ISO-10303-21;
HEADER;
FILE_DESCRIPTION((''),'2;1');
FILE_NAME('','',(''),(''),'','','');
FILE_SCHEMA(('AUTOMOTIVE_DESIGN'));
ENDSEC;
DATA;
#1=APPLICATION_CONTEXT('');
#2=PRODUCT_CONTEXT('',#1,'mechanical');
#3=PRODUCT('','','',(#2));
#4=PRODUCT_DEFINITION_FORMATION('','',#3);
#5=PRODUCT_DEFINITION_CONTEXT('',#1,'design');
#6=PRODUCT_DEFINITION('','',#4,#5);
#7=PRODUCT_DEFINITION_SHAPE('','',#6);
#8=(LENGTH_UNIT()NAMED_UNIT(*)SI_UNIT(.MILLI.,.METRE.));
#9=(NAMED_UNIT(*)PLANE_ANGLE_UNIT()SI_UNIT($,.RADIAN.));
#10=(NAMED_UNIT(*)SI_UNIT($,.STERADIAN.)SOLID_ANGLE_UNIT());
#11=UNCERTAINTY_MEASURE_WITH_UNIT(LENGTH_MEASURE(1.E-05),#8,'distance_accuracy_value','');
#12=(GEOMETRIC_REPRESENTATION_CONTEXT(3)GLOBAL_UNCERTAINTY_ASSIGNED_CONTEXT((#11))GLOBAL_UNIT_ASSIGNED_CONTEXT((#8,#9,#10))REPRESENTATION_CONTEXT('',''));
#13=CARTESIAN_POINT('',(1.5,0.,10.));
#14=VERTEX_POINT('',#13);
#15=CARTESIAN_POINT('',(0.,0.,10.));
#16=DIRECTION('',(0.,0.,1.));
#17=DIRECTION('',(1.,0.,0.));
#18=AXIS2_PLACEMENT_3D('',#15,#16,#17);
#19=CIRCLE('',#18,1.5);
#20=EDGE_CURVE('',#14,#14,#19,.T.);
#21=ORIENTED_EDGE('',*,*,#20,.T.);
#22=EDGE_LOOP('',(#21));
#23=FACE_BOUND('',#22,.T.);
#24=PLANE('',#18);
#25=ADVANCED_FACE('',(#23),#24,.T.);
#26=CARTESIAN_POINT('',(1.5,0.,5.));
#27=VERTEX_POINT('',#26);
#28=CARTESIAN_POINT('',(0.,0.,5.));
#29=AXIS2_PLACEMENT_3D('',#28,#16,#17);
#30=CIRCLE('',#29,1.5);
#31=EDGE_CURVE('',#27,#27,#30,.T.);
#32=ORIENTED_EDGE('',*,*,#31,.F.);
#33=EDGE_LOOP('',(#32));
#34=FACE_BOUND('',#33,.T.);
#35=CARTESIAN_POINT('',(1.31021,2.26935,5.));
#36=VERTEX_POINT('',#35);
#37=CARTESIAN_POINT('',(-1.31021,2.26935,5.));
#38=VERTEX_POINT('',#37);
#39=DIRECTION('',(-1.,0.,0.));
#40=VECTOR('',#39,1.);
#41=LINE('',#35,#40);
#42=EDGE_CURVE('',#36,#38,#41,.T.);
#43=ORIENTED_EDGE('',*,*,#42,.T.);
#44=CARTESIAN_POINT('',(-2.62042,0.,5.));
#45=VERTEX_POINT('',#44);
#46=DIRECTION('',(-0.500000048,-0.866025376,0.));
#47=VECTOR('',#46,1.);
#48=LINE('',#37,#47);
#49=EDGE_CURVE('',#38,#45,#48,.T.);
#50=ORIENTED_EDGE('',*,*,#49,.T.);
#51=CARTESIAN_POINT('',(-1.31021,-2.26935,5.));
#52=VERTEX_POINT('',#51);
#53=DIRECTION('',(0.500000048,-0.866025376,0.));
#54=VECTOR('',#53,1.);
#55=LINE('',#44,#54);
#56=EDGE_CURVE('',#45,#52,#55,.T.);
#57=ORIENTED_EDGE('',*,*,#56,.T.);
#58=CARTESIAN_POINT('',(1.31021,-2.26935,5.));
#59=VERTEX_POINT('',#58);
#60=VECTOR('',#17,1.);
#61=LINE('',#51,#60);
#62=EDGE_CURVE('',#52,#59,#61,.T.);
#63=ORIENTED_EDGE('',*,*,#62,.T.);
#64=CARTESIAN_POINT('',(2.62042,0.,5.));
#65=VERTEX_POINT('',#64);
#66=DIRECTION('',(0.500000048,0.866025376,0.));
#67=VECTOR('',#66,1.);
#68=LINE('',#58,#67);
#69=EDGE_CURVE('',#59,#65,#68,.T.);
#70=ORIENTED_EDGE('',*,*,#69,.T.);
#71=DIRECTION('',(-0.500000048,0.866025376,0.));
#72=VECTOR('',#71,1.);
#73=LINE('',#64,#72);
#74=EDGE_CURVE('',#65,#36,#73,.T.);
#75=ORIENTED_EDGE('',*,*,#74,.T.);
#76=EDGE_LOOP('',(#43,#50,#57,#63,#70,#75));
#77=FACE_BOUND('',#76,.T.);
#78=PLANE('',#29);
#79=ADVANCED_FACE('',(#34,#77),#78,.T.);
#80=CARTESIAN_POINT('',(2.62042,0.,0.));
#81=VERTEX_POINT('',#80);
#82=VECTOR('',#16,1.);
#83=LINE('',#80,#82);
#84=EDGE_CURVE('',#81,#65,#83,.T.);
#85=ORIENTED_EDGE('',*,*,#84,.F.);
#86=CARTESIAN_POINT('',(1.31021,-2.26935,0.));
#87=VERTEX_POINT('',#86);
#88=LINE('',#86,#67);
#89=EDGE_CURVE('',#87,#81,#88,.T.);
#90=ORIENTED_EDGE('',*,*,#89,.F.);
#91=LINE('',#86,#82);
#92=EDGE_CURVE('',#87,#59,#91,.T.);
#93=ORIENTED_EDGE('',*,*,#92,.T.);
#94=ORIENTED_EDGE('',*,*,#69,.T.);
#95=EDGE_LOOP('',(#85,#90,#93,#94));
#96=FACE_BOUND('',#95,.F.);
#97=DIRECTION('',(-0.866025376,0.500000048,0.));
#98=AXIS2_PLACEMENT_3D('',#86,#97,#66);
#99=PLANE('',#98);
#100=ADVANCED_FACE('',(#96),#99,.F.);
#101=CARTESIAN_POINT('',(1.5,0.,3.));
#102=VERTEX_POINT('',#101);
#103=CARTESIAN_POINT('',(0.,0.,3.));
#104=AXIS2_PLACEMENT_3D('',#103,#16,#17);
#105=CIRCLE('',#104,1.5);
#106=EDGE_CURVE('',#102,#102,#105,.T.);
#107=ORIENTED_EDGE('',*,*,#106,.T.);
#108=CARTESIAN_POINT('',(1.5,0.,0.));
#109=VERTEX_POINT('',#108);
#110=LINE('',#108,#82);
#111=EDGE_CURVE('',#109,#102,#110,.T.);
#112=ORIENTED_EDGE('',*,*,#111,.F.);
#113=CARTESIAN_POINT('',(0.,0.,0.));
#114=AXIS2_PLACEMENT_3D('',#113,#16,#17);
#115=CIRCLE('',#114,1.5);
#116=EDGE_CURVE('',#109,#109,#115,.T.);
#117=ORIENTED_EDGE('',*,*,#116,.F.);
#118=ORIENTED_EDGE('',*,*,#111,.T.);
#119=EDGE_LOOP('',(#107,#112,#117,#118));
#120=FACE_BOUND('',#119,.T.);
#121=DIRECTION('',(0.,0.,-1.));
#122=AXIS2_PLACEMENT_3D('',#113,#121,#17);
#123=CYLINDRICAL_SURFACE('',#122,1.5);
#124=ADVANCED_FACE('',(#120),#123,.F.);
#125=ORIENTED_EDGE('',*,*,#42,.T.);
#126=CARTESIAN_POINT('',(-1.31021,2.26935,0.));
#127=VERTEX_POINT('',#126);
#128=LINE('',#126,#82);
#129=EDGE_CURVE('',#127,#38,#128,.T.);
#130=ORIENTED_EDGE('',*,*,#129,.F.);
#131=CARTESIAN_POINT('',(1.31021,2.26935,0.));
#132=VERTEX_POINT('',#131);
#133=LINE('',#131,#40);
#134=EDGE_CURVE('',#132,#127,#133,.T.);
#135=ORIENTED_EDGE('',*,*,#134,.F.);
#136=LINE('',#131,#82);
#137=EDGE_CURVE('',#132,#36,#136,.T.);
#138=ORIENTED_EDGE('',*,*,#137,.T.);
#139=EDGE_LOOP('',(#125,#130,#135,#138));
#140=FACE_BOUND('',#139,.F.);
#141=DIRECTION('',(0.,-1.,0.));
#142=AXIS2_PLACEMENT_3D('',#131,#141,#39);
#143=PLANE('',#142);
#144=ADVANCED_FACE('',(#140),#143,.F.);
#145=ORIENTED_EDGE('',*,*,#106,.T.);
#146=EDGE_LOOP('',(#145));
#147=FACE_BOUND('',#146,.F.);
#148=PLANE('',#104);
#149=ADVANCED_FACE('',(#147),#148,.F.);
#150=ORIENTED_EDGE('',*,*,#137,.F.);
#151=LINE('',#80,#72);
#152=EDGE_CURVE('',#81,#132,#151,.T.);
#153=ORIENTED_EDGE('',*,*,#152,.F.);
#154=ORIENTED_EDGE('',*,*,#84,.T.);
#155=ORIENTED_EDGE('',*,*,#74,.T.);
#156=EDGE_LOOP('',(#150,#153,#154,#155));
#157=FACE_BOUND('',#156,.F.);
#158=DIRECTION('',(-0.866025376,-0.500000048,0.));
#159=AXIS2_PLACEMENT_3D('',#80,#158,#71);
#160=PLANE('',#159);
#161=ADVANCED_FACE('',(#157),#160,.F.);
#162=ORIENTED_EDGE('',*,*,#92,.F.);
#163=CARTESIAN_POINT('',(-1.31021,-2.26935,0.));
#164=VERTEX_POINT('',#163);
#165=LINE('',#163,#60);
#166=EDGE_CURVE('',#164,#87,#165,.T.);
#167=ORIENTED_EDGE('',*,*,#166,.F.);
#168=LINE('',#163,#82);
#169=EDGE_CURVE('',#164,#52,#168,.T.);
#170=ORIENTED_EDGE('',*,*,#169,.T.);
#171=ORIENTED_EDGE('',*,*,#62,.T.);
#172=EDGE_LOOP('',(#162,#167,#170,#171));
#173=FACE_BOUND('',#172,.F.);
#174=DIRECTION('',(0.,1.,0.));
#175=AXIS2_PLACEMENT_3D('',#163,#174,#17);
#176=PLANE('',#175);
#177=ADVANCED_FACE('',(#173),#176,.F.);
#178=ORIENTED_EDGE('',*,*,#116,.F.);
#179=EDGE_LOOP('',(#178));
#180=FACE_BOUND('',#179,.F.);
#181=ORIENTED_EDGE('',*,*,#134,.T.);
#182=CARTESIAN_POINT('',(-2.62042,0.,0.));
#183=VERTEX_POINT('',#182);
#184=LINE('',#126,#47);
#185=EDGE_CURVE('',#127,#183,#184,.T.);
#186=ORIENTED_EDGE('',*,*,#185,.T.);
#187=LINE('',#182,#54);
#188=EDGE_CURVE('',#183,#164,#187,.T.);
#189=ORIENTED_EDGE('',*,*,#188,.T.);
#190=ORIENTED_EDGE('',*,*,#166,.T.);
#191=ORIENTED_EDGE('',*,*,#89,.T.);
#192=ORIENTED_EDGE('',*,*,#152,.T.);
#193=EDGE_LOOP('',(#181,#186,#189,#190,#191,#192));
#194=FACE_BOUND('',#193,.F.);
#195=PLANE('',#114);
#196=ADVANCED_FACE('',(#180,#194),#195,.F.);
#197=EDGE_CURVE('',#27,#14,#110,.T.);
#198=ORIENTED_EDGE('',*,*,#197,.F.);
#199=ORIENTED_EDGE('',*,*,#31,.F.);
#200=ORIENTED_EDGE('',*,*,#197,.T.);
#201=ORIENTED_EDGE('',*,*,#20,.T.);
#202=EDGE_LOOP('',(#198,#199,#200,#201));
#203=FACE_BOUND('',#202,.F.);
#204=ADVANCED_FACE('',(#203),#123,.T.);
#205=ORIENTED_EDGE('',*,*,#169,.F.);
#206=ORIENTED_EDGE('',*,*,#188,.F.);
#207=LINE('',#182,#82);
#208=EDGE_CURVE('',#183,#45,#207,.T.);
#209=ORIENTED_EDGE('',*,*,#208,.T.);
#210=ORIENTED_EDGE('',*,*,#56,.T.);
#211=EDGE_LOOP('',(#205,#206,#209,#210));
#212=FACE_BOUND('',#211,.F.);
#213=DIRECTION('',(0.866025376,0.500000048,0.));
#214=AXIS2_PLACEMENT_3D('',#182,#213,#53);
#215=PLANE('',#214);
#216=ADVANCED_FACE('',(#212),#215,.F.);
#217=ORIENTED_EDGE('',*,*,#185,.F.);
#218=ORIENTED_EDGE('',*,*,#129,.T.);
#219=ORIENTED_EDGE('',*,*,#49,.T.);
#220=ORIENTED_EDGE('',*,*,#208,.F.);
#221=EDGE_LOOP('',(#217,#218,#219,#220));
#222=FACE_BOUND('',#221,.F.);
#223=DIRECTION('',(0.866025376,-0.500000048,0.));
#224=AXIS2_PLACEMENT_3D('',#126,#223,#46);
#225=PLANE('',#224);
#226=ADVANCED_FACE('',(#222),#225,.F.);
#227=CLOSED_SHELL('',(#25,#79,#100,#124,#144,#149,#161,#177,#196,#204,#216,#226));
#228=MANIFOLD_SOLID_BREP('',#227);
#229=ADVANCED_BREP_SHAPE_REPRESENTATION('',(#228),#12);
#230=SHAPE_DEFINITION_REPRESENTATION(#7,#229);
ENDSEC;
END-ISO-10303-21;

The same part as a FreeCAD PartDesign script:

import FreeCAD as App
import Part
import Sketcher
from FreeCAD import Vector
Q = App.Units.Quantity


def add_polygon(sketch, points):
    """Adds a closed chain of lines whose ends are joined by coincident constraints."""
    first, n = sketch.GeometryCount, len(points)
    for a, b in zip(points, points[1:] + points[:1]):
        sketch.addGeometry(Part.LineSegment(App.Vector(*a, 0), App.Vector(*b, 0)), False)
    for i in range(n):
        sketch.addConstraint(Sketcher.Constraint("Coincident", first + i, 2, first + (i + 1) % n, 1))

doc = App.newDocument("Part")
body = doc.addObject("PartDesign::Body", "Body")

# Sketch on XY plane
sketch1 = body.newObject("Sketcher::SketchObject", "Sketch")
sketch1.AttachmentSupport = (doc.getObject("XY_Plane"), [""])
sketch1.MapMode = "FlatFace"
sketch1.addGeometry(Part.Circle(Vector(0, 0, 0), Vector(0, 0, 1), 1.5), False)
sketch1.addConstraint(Sketcher.Constraint("Coincident", 0, 3, -1, 1))
sketch1.addConstraint(Sketcher.Constraint("Diameter", 0, Q("3 mm")))
pad1 = body.newObject("PartDesign::Pad", "Pad")
pad1.Profile = sketch1
pad1.Length = 10

# Sketch on XY plane
sketch2 = body.newObject("Sketcher::SketchObject", "Sketch001")
sketch2.AttachmentSupport = (doc.getObject("XY_Plane"), [""])
sketch2.MapMode = "FlatFace"
add_polygon(sketch2, [(1.3, 2.3), (-1.3, 2.3), (-2.6, 0), (-1.3, -2.3), (1.3, -2.3), (2.6, 0)])  # lines 0-5
sketch2.addGeometry(Part.Circle(Vector(0, 0, 0), Vector(0, 0, 1), 1.5), False)  # 6
sketch2.addConstraint(Sketcher.Constraint("Horizontal", 0))
sketch2.addConstraint(Sketcher.Constraint("Horizontal", 3))
sketch2.addConstraint(Sketcher.Constraint("Coincident", 6, 3, -1, 1))
sketch2.addConstraint(Sketcher.Constraint("Symmetric", 0, 2, 3, 2, -1, 1))
sketch2.addConstraint(Sketcher.Constraint("Symmetric", 1, 2, 4, 2, -1, 1))
sketch2.addConstraint(Sketcher.Constraint("PointOnObject", 1, 2, -1))
sketch2.addConstraint(Sketcher.Constraint("Parallel", 2, 5))
sketch2.addConstraint(Sketcher.Constraint("Vertical", 0, 2, 2, 2))
sketch2.addConstraint(Sketcher.Constraint("Diameter", 6, Q("3 mm")))
sketch2.addConstraint(Sketcher.Constraint("Angle", 1, Q("-120.000003 deg")))
sketch2.addConstraint(Sketcher.Constraint("DistanceX", 0, 2, 0, 1, Q("2.62042 mm")))
sketch2.addConstraint(Sketcher.Constraint("DistanceY", 2, 2, 0, 2, Q("4.5387 mm")))
pad2 = body.newObject("PartDesign::Pad", "Pad001")
pad2.Profile = sketch2
pad2.Length = 5

# Sketch on XY plane
sketch3 = body.newObject("Sketcher::SketchObject", "Sketch002")
sketch3.AttachmentSupport = (doc.getObject("XY_Plane"), [""])
sketch3.MapMode = "FlatFace"
sketch3.addGeometry(Part.Circle(Vector(0, 0, 0), Vector(0, 0, 1), 1.5), False)
sketch3.addConstraint(Sketcher.Constraint("Coincident", 0, 3, -1, 1))
sketch3.addConstraint(Sketcher.Constraint("Diameter", 0, Q("3 mm")))
pocket1 = body.newObject("PartDesign::Pocket", "Pocket")
pocket1.Profile = sketch3
pocket1.Length = 3
pocket1.Reversed = True

doc.recompute()
